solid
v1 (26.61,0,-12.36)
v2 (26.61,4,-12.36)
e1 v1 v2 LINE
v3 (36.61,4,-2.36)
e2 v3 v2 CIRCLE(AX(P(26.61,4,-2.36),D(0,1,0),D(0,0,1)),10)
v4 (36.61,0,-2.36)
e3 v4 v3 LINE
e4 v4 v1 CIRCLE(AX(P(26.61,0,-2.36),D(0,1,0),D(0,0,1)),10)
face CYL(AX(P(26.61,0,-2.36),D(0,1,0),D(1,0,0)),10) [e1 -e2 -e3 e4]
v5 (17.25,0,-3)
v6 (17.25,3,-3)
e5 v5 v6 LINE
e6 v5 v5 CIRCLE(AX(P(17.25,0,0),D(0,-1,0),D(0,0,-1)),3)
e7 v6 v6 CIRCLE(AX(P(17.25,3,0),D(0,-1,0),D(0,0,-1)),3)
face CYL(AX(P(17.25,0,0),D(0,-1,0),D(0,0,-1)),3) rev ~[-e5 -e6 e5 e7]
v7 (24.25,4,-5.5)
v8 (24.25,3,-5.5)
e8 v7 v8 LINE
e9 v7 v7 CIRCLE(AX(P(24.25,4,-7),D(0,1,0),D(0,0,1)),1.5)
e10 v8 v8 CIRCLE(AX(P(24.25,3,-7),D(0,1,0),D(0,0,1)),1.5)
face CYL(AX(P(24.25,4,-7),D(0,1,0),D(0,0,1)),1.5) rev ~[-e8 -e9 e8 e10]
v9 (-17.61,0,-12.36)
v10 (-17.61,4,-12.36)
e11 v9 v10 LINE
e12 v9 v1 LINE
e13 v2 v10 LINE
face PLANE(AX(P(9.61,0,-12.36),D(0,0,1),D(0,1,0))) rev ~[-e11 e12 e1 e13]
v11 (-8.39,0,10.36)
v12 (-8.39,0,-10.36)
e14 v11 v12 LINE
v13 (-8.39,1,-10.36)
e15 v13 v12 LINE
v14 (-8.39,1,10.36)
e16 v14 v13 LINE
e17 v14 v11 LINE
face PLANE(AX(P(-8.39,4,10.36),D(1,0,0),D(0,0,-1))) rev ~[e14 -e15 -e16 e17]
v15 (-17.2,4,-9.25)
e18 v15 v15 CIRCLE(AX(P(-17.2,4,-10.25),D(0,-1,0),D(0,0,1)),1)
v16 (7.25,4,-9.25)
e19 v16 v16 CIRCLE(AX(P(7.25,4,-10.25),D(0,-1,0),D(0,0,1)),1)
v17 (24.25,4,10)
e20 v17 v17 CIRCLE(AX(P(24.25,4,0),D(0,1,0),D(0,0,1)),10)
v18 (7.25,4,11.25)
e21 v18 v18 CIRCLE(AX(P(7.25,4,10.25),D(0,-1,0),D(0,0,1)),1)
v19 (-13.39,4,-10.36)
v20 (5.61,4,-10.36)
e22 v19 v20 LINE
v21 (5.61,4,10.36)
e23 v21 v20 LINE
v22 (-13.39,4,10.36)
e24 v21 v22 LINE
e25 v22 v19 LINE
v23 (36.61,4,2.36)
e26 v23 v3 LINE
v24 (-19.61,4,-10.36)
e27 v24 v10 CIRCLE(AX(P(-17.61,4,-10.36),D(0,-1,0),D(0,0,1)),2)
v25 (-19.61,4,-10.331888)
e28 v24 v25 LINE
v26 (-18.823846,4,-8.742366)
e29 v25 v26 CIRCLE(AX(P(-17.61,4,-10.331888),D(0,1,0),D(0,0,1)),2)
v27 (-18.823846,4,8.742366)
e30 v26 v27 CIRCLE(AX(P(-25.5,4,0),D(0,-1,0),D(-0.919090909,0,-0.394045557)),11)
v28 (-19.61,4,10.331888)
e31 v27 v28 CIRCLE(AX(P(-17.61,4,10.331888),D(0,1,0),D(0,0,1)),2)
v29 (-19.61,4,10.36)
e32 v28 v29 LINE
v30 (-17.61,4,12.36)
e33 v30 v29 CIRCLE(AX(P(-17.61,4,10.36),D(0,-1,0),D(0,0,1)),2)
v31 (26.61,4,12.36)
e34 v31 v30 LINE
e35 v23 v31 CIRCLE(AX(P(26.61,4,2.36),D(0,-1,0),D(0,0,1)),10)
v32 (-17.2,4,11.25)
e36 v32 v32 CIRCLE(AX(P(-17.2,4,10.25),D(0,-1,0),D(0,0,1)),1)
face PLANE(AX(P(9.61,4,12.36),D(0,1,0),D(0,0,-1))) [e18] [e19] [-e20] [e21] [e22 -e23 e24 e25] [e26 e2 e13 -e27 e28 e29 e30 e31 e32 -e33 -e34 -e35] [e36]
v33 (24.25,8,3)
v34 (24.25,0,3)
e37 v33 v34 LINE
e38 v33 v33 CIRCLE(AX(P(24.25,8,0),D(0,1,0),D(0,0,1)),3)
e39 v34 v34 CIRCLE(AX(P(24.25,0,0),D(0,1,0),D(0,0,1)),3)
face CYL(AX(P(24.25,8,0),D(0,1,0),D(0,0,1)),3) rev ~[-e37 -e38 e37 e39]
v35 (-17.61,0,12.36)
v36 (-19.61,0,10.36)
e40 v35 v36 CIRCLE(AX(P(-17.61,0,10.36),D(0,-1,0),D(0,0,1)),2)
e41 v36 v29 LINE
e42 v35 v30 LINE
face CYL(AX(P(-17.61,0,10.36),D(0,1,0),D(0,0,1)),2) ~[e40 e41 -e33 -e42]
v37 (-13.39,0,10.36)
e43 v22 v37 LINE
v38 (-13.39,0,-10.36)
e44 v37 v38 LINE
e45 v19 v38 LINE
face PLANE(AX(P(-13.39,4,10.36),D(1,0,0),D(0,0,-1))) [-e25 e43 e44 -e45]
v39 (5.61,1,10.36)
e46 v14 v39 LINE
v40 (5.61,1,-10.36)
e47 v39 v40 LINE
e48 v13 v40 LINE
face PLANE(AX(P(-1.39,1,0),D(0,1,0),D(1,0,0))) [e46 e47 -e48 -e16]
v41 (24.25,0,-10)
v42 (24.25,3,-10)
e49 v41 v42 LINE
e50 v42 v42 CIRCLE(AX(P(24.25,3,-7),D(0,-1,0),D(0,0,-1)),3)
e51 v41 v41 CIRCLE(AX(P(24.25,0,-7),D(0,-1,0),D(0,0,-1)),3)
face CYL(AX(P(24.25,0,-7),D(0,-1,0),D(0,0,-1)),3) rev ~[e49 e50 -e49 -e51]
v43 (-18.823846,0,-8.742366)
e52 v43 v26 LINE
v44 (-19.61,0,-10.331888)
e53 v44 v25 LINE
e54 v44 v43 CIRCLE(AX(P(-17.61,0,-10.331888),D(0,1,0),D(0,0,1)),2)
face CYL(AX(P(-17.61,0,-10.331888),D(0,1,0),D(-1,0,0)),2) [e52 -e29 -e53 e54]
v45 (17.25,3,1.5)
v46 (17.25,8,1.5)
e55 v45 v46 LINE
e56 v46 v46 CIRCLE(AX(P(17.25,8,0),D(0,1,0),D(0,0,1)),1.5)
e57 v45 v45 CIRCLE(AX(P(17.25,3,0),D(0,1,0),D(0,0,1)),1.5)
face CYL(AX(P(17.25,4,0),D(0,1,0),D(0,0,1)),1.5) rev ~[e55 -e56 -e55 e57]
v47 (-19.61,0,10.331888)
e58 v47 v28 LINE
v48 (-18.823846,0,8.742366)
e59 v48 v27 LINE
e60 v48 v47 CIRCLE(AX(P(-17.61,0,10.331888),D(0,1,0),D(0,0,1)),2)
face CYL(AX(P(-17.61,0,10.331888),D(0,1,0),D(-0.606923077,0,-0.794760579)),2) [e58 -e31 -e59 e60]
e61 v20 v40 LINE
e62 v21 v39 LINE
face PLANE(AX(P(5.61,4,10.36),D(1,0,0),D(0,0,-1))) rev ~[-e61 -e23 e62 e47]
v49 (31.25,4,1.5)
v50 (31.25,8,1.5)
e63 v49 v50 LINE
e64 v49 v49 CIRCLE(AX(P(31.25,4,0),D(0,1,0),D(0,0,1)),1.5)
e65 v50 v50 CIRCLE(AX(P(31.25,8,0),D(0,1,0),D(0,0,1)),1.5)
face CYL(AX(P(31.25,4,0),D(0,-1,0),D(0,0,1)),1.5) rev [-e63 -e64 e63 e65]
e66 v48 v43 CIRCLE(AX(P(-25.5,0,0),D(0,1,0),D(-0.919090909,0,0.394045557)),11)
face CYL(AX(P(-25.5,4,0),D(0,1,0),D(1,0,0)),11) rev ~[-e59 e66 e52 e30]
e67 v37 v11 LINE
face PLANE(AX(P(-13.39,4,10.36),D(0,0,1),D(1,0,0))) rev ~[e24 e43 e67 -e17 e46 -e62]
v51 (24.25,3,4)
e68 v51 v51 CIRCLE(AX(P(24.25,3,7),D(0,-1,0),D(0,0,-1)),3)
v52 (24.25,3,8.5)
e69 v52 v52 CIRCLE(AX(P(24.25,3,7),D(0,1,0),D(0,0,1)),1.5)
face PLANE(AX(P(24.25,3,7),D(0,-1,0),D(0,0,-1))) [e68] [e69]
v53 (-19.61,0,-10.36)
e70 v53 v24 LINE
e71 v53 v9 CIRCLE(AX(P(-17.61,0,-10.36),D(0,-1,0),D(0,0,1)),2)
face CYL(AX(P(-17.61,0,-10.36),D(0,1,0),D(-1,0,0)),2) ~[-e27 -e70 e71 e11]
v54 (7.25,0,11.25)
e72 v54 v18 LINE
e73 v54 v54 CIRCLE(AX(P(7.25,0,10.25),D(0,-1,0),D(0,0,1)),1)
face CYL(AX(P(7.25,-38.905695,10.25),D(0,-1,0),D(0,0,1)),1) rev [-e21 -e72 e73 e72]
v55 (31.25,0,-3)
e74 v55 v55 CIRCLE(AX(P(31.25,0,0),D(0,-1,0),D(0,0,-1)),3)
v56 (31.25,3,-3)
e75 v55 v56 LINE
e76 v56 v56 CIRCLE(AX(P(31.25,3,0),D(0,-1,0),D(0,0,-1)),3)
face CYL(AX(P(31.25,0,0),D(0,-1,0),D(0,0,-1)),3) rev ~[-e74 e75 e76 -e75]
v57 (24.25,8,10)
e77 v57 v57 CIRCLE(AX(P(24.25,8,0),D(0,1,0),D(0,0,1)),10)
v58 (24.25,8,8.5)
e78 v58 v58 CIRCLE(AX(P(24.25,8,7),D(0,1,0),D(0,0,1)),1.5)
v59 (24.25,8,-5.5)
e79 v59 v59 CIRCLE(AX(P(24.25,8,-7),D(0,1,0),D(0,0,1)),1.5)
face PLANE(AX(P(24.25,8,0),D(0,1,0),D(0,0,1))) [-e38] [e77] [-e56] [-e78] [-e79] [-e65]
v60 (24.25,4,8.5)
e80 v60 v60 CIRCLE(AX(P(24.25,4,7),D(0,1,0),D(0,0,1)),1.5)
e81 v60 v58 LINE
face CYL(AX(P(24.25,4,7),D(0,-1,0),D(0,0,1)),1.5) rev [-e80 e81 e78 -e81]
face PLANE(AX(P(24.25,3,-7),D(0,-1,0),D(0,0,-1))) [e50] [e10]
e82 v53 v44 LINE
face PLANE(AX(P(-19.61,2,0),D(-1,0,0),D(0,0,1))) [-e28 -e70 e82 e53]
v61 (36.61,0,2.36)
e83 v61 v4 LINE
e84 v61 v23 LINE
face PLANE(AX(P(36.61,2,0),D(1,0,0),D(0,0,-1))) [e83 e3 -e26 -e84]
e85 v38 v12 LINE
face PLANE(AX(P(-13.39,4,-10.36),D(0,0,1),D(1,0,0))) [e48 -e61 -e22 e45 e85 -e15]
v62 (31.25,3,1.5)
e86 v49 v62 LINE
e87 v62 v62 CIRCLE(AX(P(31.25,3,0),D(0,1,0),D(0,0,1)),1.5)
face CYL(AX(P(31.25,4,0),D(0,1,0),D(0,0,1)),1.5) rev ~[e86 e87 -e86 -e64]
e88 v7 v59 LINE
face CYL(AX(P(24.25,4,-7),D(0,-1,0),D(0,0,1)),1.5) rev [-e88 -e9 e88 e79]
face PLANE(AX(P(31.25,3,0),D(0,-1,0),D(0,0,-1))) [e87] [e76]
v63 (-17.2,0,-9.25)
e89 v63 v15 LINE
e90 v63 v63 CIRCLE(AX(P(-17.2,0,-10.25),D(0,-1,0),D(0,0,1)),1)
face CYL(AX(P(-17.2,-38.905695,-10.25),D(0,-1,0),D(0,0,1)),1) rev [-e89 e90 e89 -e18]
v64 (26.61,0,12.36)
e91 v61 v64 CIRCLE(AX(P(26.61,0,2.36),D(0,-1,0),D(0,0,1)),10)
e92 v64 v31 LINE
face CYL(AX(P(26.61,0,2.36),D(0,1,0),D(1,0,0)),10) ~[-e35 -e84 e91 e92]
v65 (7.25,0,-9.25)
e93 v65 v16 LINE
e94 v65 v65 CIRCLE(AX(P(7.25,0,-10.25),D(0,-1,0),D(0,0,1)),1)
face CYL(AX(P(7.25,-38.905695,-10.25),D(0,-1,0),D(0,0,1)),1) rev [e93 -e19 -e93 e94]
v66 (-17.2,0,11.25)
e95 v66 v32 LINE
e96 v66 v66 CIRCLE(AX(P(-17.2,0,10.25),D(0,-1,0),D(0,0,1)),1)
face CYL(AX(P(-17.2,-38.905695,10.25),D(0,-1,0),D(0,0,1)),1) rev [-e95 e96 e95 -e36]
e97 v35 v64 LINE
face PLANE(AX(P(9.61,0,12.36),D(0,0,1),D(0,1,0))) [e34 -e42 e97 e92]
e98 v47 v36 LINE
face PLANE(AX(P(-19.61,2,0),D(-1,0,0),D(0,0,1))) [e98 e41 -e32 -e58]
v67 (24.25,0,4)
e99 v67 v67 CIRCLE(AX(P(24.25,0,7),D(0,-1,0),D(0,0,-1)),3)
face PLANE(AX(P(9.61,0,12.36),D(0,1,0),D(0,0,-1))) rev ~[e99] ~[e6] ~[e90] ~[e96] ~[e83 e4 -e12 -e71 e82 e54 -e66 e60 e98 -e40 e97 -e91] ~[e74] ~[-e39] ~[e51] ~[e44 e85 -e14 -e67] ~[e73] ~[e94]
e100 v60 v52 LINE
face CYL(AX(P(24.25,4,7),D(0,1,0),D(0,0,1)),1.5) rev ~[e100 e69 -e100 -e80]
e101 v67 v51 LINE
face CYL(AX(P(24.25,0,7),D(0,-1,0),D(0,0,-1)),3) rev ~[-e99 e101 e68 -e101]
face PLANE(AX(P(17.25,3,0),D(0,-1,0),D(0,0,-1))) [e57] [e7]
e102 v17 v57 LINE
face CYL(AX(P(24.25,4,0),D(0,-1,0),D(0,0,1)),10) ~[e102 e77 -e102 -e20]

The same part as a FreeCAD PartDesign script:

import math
import FreeCAD as App
import Part
import Sketcher

V = App.Vector


def edges_at(feature, points):
    """Names of the edges that pass closest to the given points."""
    edges = feature.Shape.Edges
    near = lambda p: min(range(len(edges)), key=lambda i: edges[i].distToShape(Part.Vertex(*p))[0])
    return sorted({f"Edge{near(p) + 1}" for p in points})


def add_polygon(sketch, points):
    """Adds a closed chain of lines whose ends are joined by coincident constraints."""
    first, n = sketch.GeometryCount, len(points)
    for a, b in zip(points, points[1:] + points[:1]):
        sketch.addGeometry(Part.LineSegment(App.Vector(*a, 0), App.Vector(*b, 0)), False)
    for i in range(n):
        sketch.addConstraint(Sketcher.Constraint("Coincident", first + i, 2, first + (i + 1) % n, 1))

doc = App.newDocument("Part")
params = doc.addObject("Spreadsheet::Sheet", "Params")
for row, (alias, value) in enumerate([
    ("sketch1_radius", "3 mm"),
    ("sketch1_width", "42.22 mm"),
    ("sketch1_height", "24.72 mm"),
    ("pad1_length", "4 mm"),
    ("sketch2_diameter", "2 mm"),
    ("sketch3_width", "14 mm"),
    ("sketch3_height", "20.72 mm"),
    ("pocket2_length", "3 mm"),
    ("sketch4_width", "5 mm"),
    ("sketch4_height", "20.72 mm"),
    ("pocket3_length", "4 mm"),
    ("sketch5_width", "4 mm"),
    ("sketch5_height", "24.72 mm"),
    ("pad2_length", "27 mm"),
    ("sketch6_diameter", "20 mm"),
    ("pad3_length", "4 mm"),
    ("sketch7_diameter", "3 mm"),
    ("pocket4_length", "8 mm"),
    ("fillet_radius", "10 mm"),
    ("fillet2_radius", "10 mm"),
    ("sketch8_diameter", "22 mm"),
    ("pocket5_length", "4 mm"),
    ("sketch9_width", "4 mm"),
    ("sketch9_height", "24.72 mm"),
    ("pocket6_length", "16 mm"),
    ("fillet3_radius", "2 mm"),
    ("fillet4_radius", "2 mm"),
    ("fillet5_radius", "2 mm"),
    ("fillet6_radius", "2 mm"),
    ("sketch10_diameter", "6 mm"),
    ("pocket7_length", "13 mm"),
    ("sketch11_diameter", "6 mm"),
    ("pocket8_length", "3 mm"),
], start=1):
    params.set(f"A{row}", alias)
    params.set(f"B{row}", "=" + value)
    params.setAlias(f"B{row}", alias)

body = doc.addObject("PartDesign::Body", "Body")

sketch1 = body.newObject("Sketcher::SketchObject", "Sketch")
sketch1.AttachmentSupport = (doc.getObject("XZ_Plane"), [""])
sketch1.MapMode = "FlatFace"
sketch1.addGeometry([
    Part.LineSegment(V(9.6, 12.4, 0), V(9.6, -12.4, 0)),
    Part.LineSegment(V(9.6, -12.4, 0), V(-32.6, -12.4, 0)),
    Part.ArcOfCircle(Part.Circle(V(-32.6, -9.4, 0), V(0, 0, 1), 3), math.radians(180), math.radians(270)),
    Part.LineSegment(V(-35.6, -9.4, 0), V(-35.6, 9.4, 0)),
    Part.ArcOfCircle(Part.Circle(V(-32.6, 9.4, 0), V(0, 0, 1), 3), math.radians(90), math.radians(180)),
    Part.LineSegment(V(-32.6, 12.4, 0), V(9.6, 12.4, 0)),
], False)
sketch1.addConstraint([
    Sketcher.Constraint("Coincident", 0, 2, 1, 1),
    Sketcher.Constraint("Tangent", 1, 2, 2, 2),
    Sketcher.Constraint("Tangent", 2, 1, 3, 1),
    Sketcher.Constraint("Tangent", 3, 2, 4, 2),
    Sketcher.Constraint("Tangent", 4, 1, 5, 1),
    Sketcher.Constraint("Coincident", 5, 2, 0, 1),
    Sketcher.Constraint("Vertical", 0),
    Sketcher.Constraint("Horizontal", 1),
    Sketcher.Constraint("Vertical", 3),
    Sketcher.Constraint("Horizontal", 5),
    Sketcher.Constraint("Equal", 2, 4),
    Sketcher.Constraint("Radius", 2, 3.0),
    Sketcher.Constraint("DistanceX", 1, 2, 1, 1, 42.22),
    Sketcher.Constraint("DistanceY", 0, 2, 0, 1, 24.72),
    Sketcher.Constraint("DistanceX", 2, 3, -1, 1, 32.61),
    Sketcher.Constraint("DistanceY", 2, 3, -1, 1, 9.36),
])
sketch1.setExpression("Constraints[11]", "Params.sketch1_radius")
sketch1.setExpression("Constraints[12]", "Params.sketch1_width")
sketch1.setExpression("Constraints[13]", "Params.sketch1_height")
pad1 = body.newObject("PartDesign::Pad", "Pad")
pad1.Profile = sketch1
pad1.setExpression("Length", "Params.pad1_length")
pad1.Reversed = True

sketch2 = body.newObject("Sketcher::SketchObject", "Sketch001")
sketch2.AttachmentSupport = (doc.getObject("XZ_Plane"), [""])
sketch2.MapMode = "FlatFace"
sketch2.addGeometry([
    Part.Circle(V(7.2, 10.2, 0), V(0, 0, 1), 1),
    Part.Circle(V(7.2, -10.2, 0), V(0, 0, 1), 1),
    Part.Circle(V(-17.2, 10.2, 0), V(0, 0, 1), 1),
    Part.Circle(V(-17.2, -10.2, 0), V(0, 0, 1), 1),
], False)
sketch2.addConstraint([
    Sketcher.Constraint("Equal", 0, 1),
    Sketcher.Constraint("Equal", 1, 2),
    Sketcher.Constraint("Equal", 2, 3),
    Sketcher.Constraint("Symmetric", 0, 3, 1, 3, -1),
    Sketcher.Constraint("Symmetric", 2, 3, 3, 3, -1),
    Sketcher.Constraint("Horizontal", 0, 3, 2, 3),
    Sketcher.Constraint("Diameter", 0, 2.0),
    Sketcher.Constraint("DistanceX", 2, 3, -1, 1, 17.2),
    Sketcher.Constraint("DistanceY", 1, 3, 0, 3, 20.5),
    Sketcher.Constraint("DistanceX", -1, 1, 0, 3, 7.25),
])
sketch2.setExpression("Constraints[6]", "Params.sketch2_diameter")
pocket1 = body.newObject("PartDesign::Pocket", "Pocket")
pocket1.Profile = sketch2
pocket1.Type = "ThroughAll"
pocket1.Midplane = True

sketch3 = body.newObject("Sketcher::SketchObject", "Sketch002")
sketch3.AttachmentSupport = (doc.getObject("XZ_Plane"), [""])
sketch3.MapMode = "FlatFace"
sketch3.AttachmentOffset = App.Placement(V(0, 0, -4), App.Rotation())
add_polygon(sketch3, [(-8, -10), (-8, 10), (6, 10), (6, -10)])
sketch3.addConstraint([
    Sketcher.Constraint("Vertical", 0),
    Sketcher.Constraint("Horizontal", 1),
    Sketcher.Constraint("Vertical", 2),
    Sketcher.Constraint("Horizontal", 3),
    Sketcher.Constraint("DistanceX", 1, 1, 1, 2, 14.0),
    Sketcher.Constraint("DistanceY", 0, 1, 0, 2, 20.72),
    Sketcher.Constraint("DistanceX", 0, 2, -1, 1, 8.39),
    Sketcher.Constraint("DistanceY", -1, 1, 0, 2, 10.36),
])
sketch3.setExpression("Constraints[8]", "Params.sketch3_width")
sketch3.setExpression("Constraints[9]", "Params.sketch3_height")
pocket2 = body.newObject("PartDesign::Pocket", "Pocket001")
pocket2.Profile = sketch3
pocket2.setExpression("Length", "Params.pocket2_length")
pocket2.Reversed = True

sketch4 = body.newObject("Sketcher::SketchObject", "Sketch003")
sketch4.AttachmentSupport = (doc.getObject("XZ_Plane"), [""])
sketch4.MapMode = "FlatFace"
sketch4.AttachmentOffset = App.Placement(V(0, 0, -4), App.Rotation())
add_polygon(sketch4, [(-13, -10), (-13, 10), (-8, 10), (-8, -10)])
sketch4.addConstraint([
    Sketcher.Constraint("Vertical", 0),
    Sketcher.Constraint("Horizontal", 1),
    Sketcher.Constraint("Vertical", 2),
    Sketcher.Constraint("Horizontal", 3),
    Sketcher.Constraint("DistanceX", 1, 1, 1, 2, 5.0),
    Sketcher.Constraint("DistanceY", 0, 1, 0, 2, 20.72),
    Sketcher.Constraint("DistanceX", 0, 2, -1, 1, 13.39),
    Sketcher.Constraint("DistanceY", -1, 1, 0, 2, 10.36),
])
sketch4.setExpression("Constraints[8]", "Params.sketch4_width")
sketch4.setExpression("Constraints[9]", "Params.sketch4_height")
pocket3 = body.newObject("PartDesign::Pocket", "Pocket002")
pocket3.Profile = sketch4
pocket3.setExpression("Length", "Params.pocket3_length")
pocket3.Reversed = True

sketch5 = body.newObject("Sketcher::SketchObject", "Sketch004")
sketch5.AttachmentSupport = (doc.getObject("YZ_Plane"), [""])
sketch5.MapMode = "FlatFace"
sketch5.AttachmentOffset = App.Placement(V(0, 0, 9.61), App.Rotation())
add_polygon(sketch5, [(4, 12.4), (0, 12.4), (0, -12.4), (4, -12.4)])
sketch5.addConstraint([
    Sketcher.Constraint("Horizontal", 0),
    Sketcher.Constraint("Vertical", 1),
    Sketcher.Constraint("Horizontal", 2),
    Sketcher.Constraint("Vertical", 3),
    Sketcher.Constraint("Symmetric", 0, 2, 1, 2, -1, 1),
    Sketcher.Constraint("DistanceX", 0, 2, 0, 1, 4.0),
    Sketcher.Constraint("DistanceY", 1, 2, 1, 1, 24.72),
])
sketch5.setExpression("Constraints[9]", "Params.sketch5_width")
sketch5.setExpression("Constraints[10]", "Params.sketch5_height")
pad2 = body.newObject("PartDesign::Pad", "Pad001")
pad2.Profile = sketch5
pad2.setExpression("Length", "Params.pad2_length")

sketch6 = body.newObject("Sketcher::SketchObject", "Sketch005")
sketch6.AttachmentSupport = (doc.getObject("XZ_Plane"), [""])
sketch6.MapMode = "FlatFace"
sketch6.AttachmentOffset = App.Placement(V(0, 0, -4), App.Rotation())
sketch6.addGeometry(Part.Circle(V(24, 0, 0), V(0, 0, 1), 10), False)
sketch6.addConstraint([
    Sketcher.Constraint("PointOnObject", 0, 3, -1),
    Sketcher.Constraint("Diameter", 0, 20.0),
    Sketcher.Constraint("DistanceX", -1, 1, 0, 3, 24.25),
])
sketch6.setExpression("Constraints[1]", "Params.sketch6_diameter")
pad3 = body.newObject("PartDesign::Pad", "Pad002")
pad3.Profile = sketch6
pad3.setExpression("Length", "Params.pad3_length")
pad3.Reversed = True

sketch7 = body.newObject("Sketcher::SketchObject", "Sketch006")
sketch7.AttachmentSupport = (doc.getObject("XZ_Plane"), [""])
sketch7.MapMode = "FlatFace"
sketch7.AttachmentOffset = App.Placement(V(0, 0, -4), App.Rotation())
sketch7.addGeometry([
    Part.Circle(V(24.2, 7, 0), V(0, 0, 1), 1.5),
    Part.Circle(V(31.2, 0, 0), V(0, 0, 1), 1.5),
    Part.Circle(V(24.2, -7, 0), V(0, 0, 1), 1.5),
    Part.Circle(V(17.2, 0, 0), V(0, 0, 1), 1.5),
], False)
sketch7.addConstraint([
    Sketcher.Constraint("Equal", 0, 1),
    Sketcher.Constraint("Equal", 1, 2),
    Sketcher.Constraint("Equal", 2, 3),
    Sketcher.Constraint("Symmetric", 0, 3, 2, 3, -1),
    Sketcher.Constraint("PointOnObject", 1, 3, -1),
    Sketcher.Constraint("PointOnObject", 3, 3, -1),
    Sketcher.Constraint("Diameter", 0, 3.0),
    Sketcher.Constraint("DistanceY", -1, 1, 0, 3, 7.0),
    Sketcher.Constraint("DistanceX", 0, 3, 1, 3, 7.0),
    Sketcher.Constraint("DistanceX", 3, 3, 0, 3, 7.0),
    Sketcher.Constraint("DistanceX", -1, 1, 0, 3, 24.25),
])
sketch7.setExpression("Constraints[6]", "Params.sketch7_diameter")
pocket4 = body.newObject("PartDesign::Pocket", "Pocket003")
pocket4.Profile = sketch7
pocket4.setExpression("Length", "Params.pocket4_length")
pocket4.Midplane = True
doc.recompute()

fillet = body.newObject("PartDesign::Fillet", "Fillet")
fillet.Base = (pocket4, edges_at(pocket4, [(36.61, 2, -12.36)]))
fillet.setExpression("Radius", "Params.fillet_radius")
doc.recompute()

fillet2 = body.newObject("PartDesign::Fillet", "Fillet001")
fillet2.Base = (fillet, edges_at(fillet, [(36.61, 2, 12.36)]))
fillet2.setExpression("Radius", "Params.fillet2_radius")

sketch8 = body.newObject("Sketcher::SketchObject", "Sketch007")
sketch8.AttachmentSupport = (doc.getObject("XZ_Plane"), [""])
sketch8.MapMode = "FlatFace"
sketch8.AttachmentOffset = App.Placement(V(0, 0, -4), App.Rotation())
sketch8.addGeometry(Part.Circle(V(-26, 0, 0), V(0, 0, 1), 11), False)
sketch8.addConstraint([
    Sketcher.Constraint("PointOnObject", 0, 3, -1),
    Sketcher.Constraint("Diameter", 0, 22.0),
    Sketcher.Constraint("DistanceX", 0, 3, -1, 1, 25.5),
])
sketch8.setExpression("Constraints[1]", "Params.sketch8_diameter")
pocket5 = body.newObject("PartDesign::Pocket", "Pocket004")
pocket5.Profile = sketch8
pocket5.setExpression("Length", "Params.pocket5_length")
pocket5.Reversed = True

sketch9 = body.newObject("Sketcher::SketchObject", "Sketch008")
sketch9.AttachmentSupport = (doc.getObject("YZ_Plane"), [""])
sketch9.MapMode = "FlatFace"
sketch9.AttachmentOffset = App.Placement(V(0, 0, -35.61), App.Rotation())
add_polygon(sketch9, [(4, -12.4), (0, -12.4), (0, 12.4), (4, 12.4)])
sketch9.addConstraint([
    Sketcher.Constraint("Horizontal", 0),
    Sketcher.Constraint("Vertical", 1),
    Sketcher.Constraint("Horizontal", 2),
    Sketcher.Constraint("Vertical", 3),
    Sketcher.Constraint("Symmetric", 0, 2, 1, 2, -1, 1),
    Sketcher.Constraint("DistanceX", 0, 2, 0, 1, 4.0),
    Sketcher.Constraint("DistanceY", 1, 1, 1, 2, 24.72),
])
sketch9.setExpression("Constraints[9]", "Params.sketch9_width")
sketch9.setExpression("Constraints[10]", "Params.sketch9_height")
pocket6 = body.newObject("PartDesign::Pocket", "Pocket005")
pocket6.Profile = sketch9
pocket6.setExpression("Length", "Params.pocket6_length")
pocket6.Reversed = True
doc.recompute()

fillet3 = body.newObject("PartDesign::Fillet", "Fillet002")
fillet3.Base = (pocket6, edges_at(pocket6, [(-19.61, 2, 12.36)]))
fillet3.setExpression("Radius", "Params.fillet3_radius")
doc.recompute()

fillet4 = body.newObject("PartDesign::Fillet", "Fillet003")
fillet4.Base = (fillet3, edges_at(fillet3, [(-19.61, 2, -12.36)]))
fillet4.setExpression("Radius", "Params.fillet4_radius")
doc.recompute()

fillet5 = body.newObject("PartDesign::Fillet", "Fillet004")
fillet5.Base = (fillet4, edges_at(fillet4, [(-19.61, 2, -9.29)]))
fillet5.setExpression("Radius", "Params.fillet5_radius")
doc.recompute()

fillet6 = body.newObject("PartDesign::Fillet", "Fillet005")
fillet6.Base = (fillet5, edges_at(fillet5, [(-19.61, 2, 9.29)]))
fillet6.setExpression("Radius", "Params.fillet6_radius")

sketch10 = body.newObject("Sketcher::SketchObject", "Sketch009")
sketch10.AttachmentSupport = (doc.getObject("XZ_Plane"), [""])
sketch10.MapMode = "FlatFace"
sketch10.AttachmentOffset = App.Placement(V(0, 0, -8), App.Rotation())
sketch10.addGeometry(Part.Circle(V(24.2, 0, 0), V(0, 0, 1), 3), False)
sketch10.addConstraint([
    Sketcher.Constraint("PointOnObject", 0, 3, -1),
    Sketcher.Constraint("Diameter", 0, 6.0),
    Sketcher.Constraint("DistanceX", -1, 1, 0, 3, 24.25),
])
sketch10.setExpression("Constraints[1]", "Params.sketch10_diameter")
pocket7 = body.newObject("PartDesign::Pocket", "Pocket006")
pocket7.Profile = sketch10
pocket7.setExpression("Length", "Params.pocket7_length")
pocket7.Reversed = True

sketch11 = body.newObject("Sketcher::SketchObject", "Sketch010")
sketch11.AttachmentSupport = (doc.getObject("XZ_Plane"), [""])
sketch11.MapMode = "FlatFace"
sketch11.addGeometry([
    Part.Circle(V(24.2, 7, 0), V(0, 0, 1), 3),
    Part.Circle(V(17.2, 0, 0), V(0, 0, 1), 3),
    Part.Circle(V(24.2, -7, 0), V(0, 0, 1), 3),
    Part.Circle(V(31.2, 0, 0), V(0, 0, 1), 3),
], False)
sketch11.addConstraint([
    Sketcher.Constraint("Equal", 0, 1),
    Sketcher.Constraint("Equal", 1, 2),
    Sketcher.Constraint("Equal", 2, 3),
    Sketcher.Constraint("Symmetric", 0, 3, 2, 3, -1),
    Sketcher.Constraint("PointOnObject", 1, 3, -1),
    Sketcher.Constraint("PointOnObject", 3, 3, -1),
    Sketcher.Constraint("Diameter", 0, 6.0),
    Sketcher.Constraint("DistanceY", -1, 1, 0, 3, 7.0),
    Sketcher.Constraint("DistanceX", 1, 3, 0, 3, 7.0),
    Sketcher.Constraint("DistanceX", 0, 3, 3, 3, 7.0),
    Sketcher.Constraint("DistanceX", -1, 1, 0, 3, 24.25),
])
sketch11.setExpression("Constraints[6]", "Params.sketch11_diameter")
pocket8 = body.newObject("PartDesign::Pocket", "Pocket007")
pocket8.Profile = sketch11
pocket8.setExpression("Length", "Params.pocket8_length")

doc.recompute()
